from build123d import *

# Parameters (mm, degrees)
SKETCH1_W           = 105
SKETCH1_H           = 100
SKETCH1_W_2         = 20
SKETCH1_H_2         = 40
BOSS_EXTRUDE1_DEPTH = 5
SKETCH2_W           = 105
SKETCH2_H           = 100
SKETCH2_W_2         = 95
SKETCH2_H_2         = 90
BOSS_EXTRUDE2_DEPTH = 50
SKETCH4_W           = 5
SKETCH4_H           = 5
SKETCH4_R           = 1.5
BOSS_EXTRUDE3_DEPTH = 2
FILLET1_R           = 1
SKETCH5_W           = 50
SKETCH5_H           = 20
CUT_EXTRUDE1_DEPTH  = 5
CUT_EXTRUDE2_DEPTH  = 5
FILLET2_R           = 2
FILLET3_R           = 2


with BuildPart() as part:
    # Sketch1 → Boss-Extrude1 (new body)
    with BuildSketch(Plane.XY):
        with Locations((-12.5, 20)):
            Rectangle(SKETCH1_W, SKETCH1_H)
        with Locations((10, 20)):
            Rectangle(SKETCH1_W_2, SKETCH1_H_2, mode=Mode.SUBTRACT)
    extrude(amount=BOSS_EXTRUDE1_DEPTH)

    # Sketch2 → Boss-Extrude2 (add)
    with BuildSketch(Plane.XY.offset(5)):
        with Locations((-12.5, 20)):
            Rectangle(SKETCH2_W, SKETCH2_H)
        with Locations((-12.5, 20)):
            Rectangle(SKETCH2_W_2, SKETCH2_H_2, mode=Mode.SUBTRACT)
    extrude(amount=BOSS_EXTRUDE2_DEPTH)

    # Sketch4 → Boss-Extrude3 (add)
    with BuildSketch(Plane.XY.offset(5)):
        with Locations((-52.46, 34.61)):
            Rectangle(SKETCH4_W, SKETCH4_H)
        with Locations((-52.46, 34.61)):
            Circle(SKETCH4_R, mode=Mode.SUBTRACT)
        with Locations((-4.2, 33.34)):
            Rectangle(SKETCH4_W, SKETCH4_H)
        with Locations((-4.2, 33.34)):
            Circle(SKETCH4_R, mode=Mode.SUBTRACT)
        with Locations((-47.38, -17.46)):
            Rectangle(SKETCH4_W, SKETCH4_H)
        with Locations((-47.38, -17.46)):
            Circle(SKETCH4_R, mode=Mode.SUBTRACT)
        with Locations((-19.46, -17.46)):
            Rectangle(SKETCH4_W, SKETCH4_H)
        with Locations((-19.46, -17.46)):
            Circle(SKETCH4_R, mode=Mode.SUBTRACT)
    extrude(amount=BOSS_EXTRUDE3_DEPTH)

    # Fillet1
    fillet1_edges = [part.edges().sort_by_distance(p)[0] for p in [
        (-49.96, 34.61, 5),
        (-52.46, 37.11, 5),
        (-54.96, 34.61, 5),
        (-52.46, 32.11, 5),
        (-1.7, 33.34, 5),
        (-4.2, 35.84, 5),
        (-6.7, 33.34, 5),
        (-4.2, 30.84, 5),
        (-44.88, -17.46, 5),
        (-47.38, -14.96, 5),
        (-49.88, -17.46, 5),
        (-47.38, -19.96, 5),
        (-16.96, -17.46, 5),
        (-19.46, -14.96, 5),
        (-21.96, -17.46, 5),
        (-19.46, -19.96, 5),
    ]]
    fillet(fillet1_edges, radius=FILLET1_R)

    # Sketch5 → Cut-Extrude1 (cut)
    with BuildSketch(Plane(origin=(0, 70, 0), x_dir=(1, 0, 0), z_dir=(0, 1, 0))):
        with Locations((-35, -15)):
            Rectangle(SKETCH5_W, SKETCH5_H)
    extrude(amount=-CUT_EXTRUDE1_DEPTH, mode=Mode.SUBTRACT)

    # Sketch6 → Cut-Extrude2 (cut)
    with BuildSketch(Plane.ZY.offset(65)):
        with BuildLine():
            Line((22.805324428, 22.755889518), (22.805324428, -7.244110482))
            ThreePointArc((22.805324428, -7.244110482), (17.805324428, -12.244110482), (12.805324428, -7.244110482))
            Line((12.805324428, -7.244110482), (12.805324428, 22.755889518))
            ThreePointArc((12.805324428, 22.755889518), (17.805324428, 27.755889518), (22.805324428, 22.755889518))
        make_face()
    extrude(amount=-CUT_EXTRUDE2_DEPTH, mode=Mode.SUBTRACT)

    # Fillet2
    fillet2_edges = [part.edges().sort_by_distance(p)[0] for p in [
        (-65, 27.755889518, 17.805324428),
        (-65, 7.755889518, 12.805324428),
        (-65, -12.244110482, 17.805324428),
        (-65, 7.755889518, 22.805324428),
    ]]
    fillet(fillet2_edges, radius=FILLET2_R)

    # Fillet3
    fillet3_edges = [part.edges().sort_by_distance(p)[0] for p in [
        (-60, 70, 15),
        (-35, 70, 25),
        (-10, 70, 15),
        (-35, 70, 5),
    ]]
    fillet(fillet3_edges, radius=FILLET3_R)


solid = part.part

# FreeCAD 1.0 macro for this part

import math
import FreeCAD as App
import Part
import Sketcher
from FreeCAD import Vector
Q = App.Units.Quantity


def edges_at(feature, points):
    """Names of the edges that pass closest to the given points."""
    edges = feature.Shape.Edges
    near = lambda p: min(range(len(edges)), key=lambda i: edges[i].distToShape(Part.Vertex(*p))[0])
    return sorted({f"Edge{near(p) + 1}" for p in points})


def add_polygon(sketch, points):
    """Adds a closed chain of lines whose ends are joined by coincident constraints."""
    first, n = sketch.GeometryCount, len(points)
    for a, b in zip(points, points[1:] + points[:1]):
        sketch.addGeometry(Part.LineSegment(App.Vector(*a, 0), App.Vector(*b, 0)), False)
    for i in range(n):
        sketch.addConstraint(Sketcher.Constraint("Coincident", first + i, 2, first + (i + 1) % n, 1))

doc = App.newDocument("Part")
params = doc.addObject("Spreadsheet::Sheet", "Params")
for row, (alias, value) in enumerate([
    ("sketch1_width", "105 mm"),
    ("sketch1_width2", "20 mm"),
    ("sketch1_height", "100 mm"),
    ("sketch1_height2", "40 mm"),
    ("pad1_length", "5 mm"),
    ("sketch2_width", "105 mm"),
    ("sketch2_width2", "95 mm"),
    ("sketch2_height", "100 mm"),
    ("sketch2_height2", "90 mm"),
    ("pad2_length", "50 mm"),
    ("sketch3_diameter", "3 mm"),
    ("sketch3_width", "5 mm"),
    ("pad3_length", "2 mm"),
    ("fillet_radius", "1 mm"),
    ("sketch4_width", "50 mm"),
    ("sketch4_height", "20 mm"),
    ("pocket1_length", "5 mm"),
    ("sketch5_radius", "5 mm"),
    ("sketch5_width", "30 mm"),
    ("pocket2_length", "5 mm"),
    ("fillet2_radius", "2 mm"),
    ("fillet3_radius", "2 mm"),
], start=1):
    params.set(f"A{row}", alias)
    params.set(f"B{row}", "=" + value)
    params.setAlias(f"B{row}", alias)

body = doc.addObject("PartDesign::Body", "Body")

sketch1 = body.newObject("Sketcher::SketchObject", "Sketch")
sketch1.AttachmentSupport = (doc.getObject("XY_Plane"), [""])
sketch1.MapMode = "FlatFace"
add_polygon(sketch1, [(-65, 70), (-65, -30), (40, -30), (40, 70)])
add_polygon(sketch1, [(20, 0), (0, 0), (0, 40), (20, 40)])
sketch1.addConstraint(Sketcher.Constraint("Vertical", 0))
sketch1.addConstraint(Sketcher.Constraint("Horizontal", 1))
sketch1.addConstraint(Sketcher.Constraint("Vertical", 2))
sketch1.addConstraint(Sketcher.Constraint("Horizontal", 3))
sketch1.addConstraint(Sketcher.Constraint("Horizontal", 4))
sketch1.addConstraint(Sketcher.Constraint("Vertical", 5))
sketch1.addConstraint(Sketcher.Constraint("Horizontal", 6))
sketch1.addConstraint(Sketcher.Constraint("Vertical", 7))
sketch1.addConstraint(Sketcher.Constraint("Coincident", 4, 2, -1, 1))
sketch1.addConstraint(Sketcher.Constraint("DistanceX", 1, 1, 1, 2, Q("105 mm")))
sketch1.addConstraint(Sketcher.Constraint("DistanceX", 4, 2, 4, 1, Q("20 mm")))
sketch1.addConstraint(Sketcher.Constraint("DistanceY", 0, 2, 0, 1, Q("100 mm")))
sketch1.addConstraint(Sketcher.Constraint("DistanceY", 5, 1, 5, 2, Q("40 mm")))
sketch1.addConstraint(Sketcher.Constraint("DistanceX", 0, 2, -1, 1, Q("65 mm")))
sketch1.addConstraint(Sketcher.Constraint("DistanceY", 0, 2, -1, 1, Q("30 mm")))
sketch1.setExpression("Constraints[17]", "Params.sketch1_width")
sketch1.setExpression("Constraints[18]", "Params.sketch1_width2")
sketch1.setExpression("Constraints[19]", "Params.sketch1_height")
sketch1.setExpression("Constraints[20]", "Params.sketch1_height2")
pad1 = body.newObject("PartDesign::Pad", "Pad")
pad1.Profile = sketch1
pad1.setExpression("Length", "Params.pad1_length")

sketch2 = body.newObject("Sketcher::SketchObject", "Sketch001")
sketch2.AttachmentSupport = (doc.getObject("XY_Plane"), [""])
sketch2.MapMode = "FlatFace"
sketch2.AttachmentOffset = App.Placement(Vector(0, 0, 5), App.Rotation())
add_polygon(sketch2, [(-65, 70), (-65, -30), (40, -30), (40, 70)])
add_polygon(sketch2, [(35, -25), (-60, -25), (-60, 65), (35, 65)])
sketch2.addConstraint(Sketcher.Constraint("Vertical", 0))
sketch2.addConstraint(Sketcher.Constraint("Horizontal", 1))
sketch2.addConstraint(Sketcher.Constraint("Vertical", 2))
sketch2.addConstraint(Sketcher.Constraint("Horizontal", 3))
sketch2.addConstraint(Sketcher.Constraint("Horizontal", 4))
sketch2.addConstraint(Sketcher.Constraint("Vertical", 5))
sketch2.addConstraint(Sketcher.Constraint("Horizontal", 6))
sketch2.addConstraint(Sketcher.Constraint("Vertical", 7))
sketch2.addConstraint(Sketcher.Constraint("DistanceX", 1, 1, 1, 2, Q("105 mm")))
sketch2.addConstraint(Sketcher.Constraint("DistanceX", 4, 2, 4, 1, Q("95 mm")))
sketch2.addConstraint(Sketcher.Constraint("DistanceY", 0, 2, 0, 1, Q("100 mm")))
sketch2.addConstraint(Sketcher.Constraint("DistanceY", 5, 1, 5, 2, Q("90 mm")))
sketch2.addConstraint(Sketcher.Constraint("DistanceX", 0, 2, -1, 1, Q("65 mm")))
sketch2.addConstraint(Sketcher.Constraint("DistanceY", 0, 2, -1, 1, Q("30 mm")))
sketch2.addConstraint(Sketcher.Constraint("DistanceX", 4, 2, -1, 1, Q("60 mm")))
sketch2.addConstraint(Sketcher.Constraint("DistanceY", 4, 2, -1, 1, Q("25 mm")))
sketch2.setExpression("Constraints[16]", "Params.sketch2_width")
sketch2.setExpression("Constraints[17]", "Params.sketch2_width2")
sketch2.setExpression("Constraints[18]", "Params.sketch2_height")
sketch2.setExpression("Constraints[19]", "Params.sketch2_height2")
pad2 = body.newObject("PartDesign::Pad", "Pad001")
pad2.Profile = sketch2
pad2.setExpression("Length", "Params.pad2_length")

sketch3 = body.newObject("Sketcher::SketchObject", "Sketch002")
sketch3.AttachmentSupport = (doc.getObject("XY_Plane"), [""])
sketch3.MapMode = "FlatFace"
sketch3.AttachmentOffset = App.Placement(Vector(0, 0, 5), App.Rotation())
add_polygon(sketch3, [(-55, 37.1), (-55, 32.1), (-50, 32.1), (-50, 37.1)])
sketch3.addGeometry(Part.Circle(Vector(-52.5, 34.6, 0), Vector(0, 0, 1), 1.5), False)
add_polygon(sketch3, [(-6.7, 35.8), (-6.7, 30.8), (-1.7, 30.8), (-1.7, 35.8)])
sketch3.addGeometry(Part.Circle(Vector(-4.2, 33.3, 0), Vector(0, 0, 1), 1.5), False)
add_polygon(sketch3, [(-49.9, -15), (-49.9, -20), (-44.9, -20), (-44.9, -15)])
sketch3.addGeometry(Part.Circle(Vector(-47.4, -17.5, 0), Vector(0, 0, 1), 1.5), False)
add_polygon(sketch3, [(-22, -15), (-22, -20), (-17, -20), (-17, -15)])
sketch3.addGeometry(Part.Circle(Vector(-19.5, -17.5, 0), Vector(0, 0, 1), 1.5), False)
sketch3.addConstraint(Sketcher.Constraint("Vertical", 0))
sketch3.addConstraint(Sketcher.Constraint("Horizontal", 1))
sketch3.addConstraint(Sketcher.Constraint("Vertical", 2))
sketch3.addConstraint(Sketcher.Constraint("Horizontal", 3))
sketch3.addConstraint(Sketcher.Constraint("Vertical", 5))
sketch3.addConstraint(Sketcher.Constraint("Horizontal", 6))
sketch3.addConstraint(Sketcher.Constraint("Vertical", 7))
sketch3.addConstraint(Sketcher.Constraint("Horizontal", 8))
sketch3.addConstraint(Sketcher.Constraint("Vertical", 10))
sketch3.addConstraint(Sketcher.Constraint("Horizontal", 11))
sketch3.addConstraint(Sketcher.Constraint("Vertical", 12))
sketch3.addConstraint(Sketcher.Constraint("Horizontal", 13))
sketch3.addConstraint(Sketcher.Constraint("Vertical", 15))
sketch3.addConstraint(Sketcher.Constraint("Horizontal", 16))
sketch3.addConstraint(Sketcher.Constraint("Vertical", 17))
sketch3.addConstraint(Sketcher.Constraint("Horizontal", 18))
sketch3.addConstraint(Sketcher.Constraint("Equal", 4, 9))
sketch3.addConstraint(Sketcher.Constraint("Equal", 9, 14))
sketch3.addConstraint(Sketcher.Constraint("Equal", 14, 19))
sketch3.addConstraint(Sketcher.Constraint("Horizontal", 14, 3, 19, 3))
sketch3.addConstraint(Sketcher.Constraint("Horizontal", 11, 2, 15, 2))
sketch3.addConstraint(Sketcher.Constraint("Horizontal", 13, 2, 17, 2))
sketch3.addConstraint(Sketcher.Constraint("Equal", 3, 6))
sketch3.addConstraint(Sketcher.Constraint("Equal", 8, 11))
sketch3.addConstraint(Sketcher.Constraint("Equal", 13, 16))
sketch3.addConstraint(Sketcher.Constraint("Equal", 18, 0))
sketch3.addConstraint(Sketcher.Constraint("Equal", 2, 5))
sketch3.addConstraint(Sketcher.Constraint("Equal", 7, 10))
sketch3.addConstraint(Sketcher.Constraint("Diameter", 4, Q("3 mm")))
sketch3.addConstraint(Sketcher.Constraint("DistanceX", 1, 1, 1, 2, Q("5 mm")))
sketch3.addConstraint(Sketcher.Constraint("DistanceX", 4, 3, 19, 3, Q("33 mm")))
sketch3.addConstraint(Sketcher.Constraint("DistanceX", 9, 3, -1, 1, Q("4.2 mm")))
sketch3.addConstraint(Sketcher.Constraint("DistanceX", 5, 2, -1, 1, Q("6.7 mm")))
sketch3.addConstraint(Sketcher.Constraint("DistanceY", 14, 3, 9, 3, Q("50.8 mm")))
sketch3.addConstraint(Sketcher.Constraint("DistanceX", 0, 2, 4, 3, Q("2.5 mm")))
sketch3.addConstraint(Sketcher.Constraint("DistanceY", 0, 2, 4, 3, Q("2.5 mm")))
sketch3.addConstraint(Sketcher.Constraint("DistanceY", 5, 2, 9, 3, Q("2.5 mm")))
sketch3.addConstraint(Sketcher.Constraint("DistanceX", 10, 2, 14, 3, Q("2.5 mm")))
sketch3.addConstraint(Sketcher.Constraint("DistanceY", 10, 2, 14, 3, Q("2.5 mm")))
sketch3.addConstraint(Sketcher.Constraint("DistanceX", 15, 2, 19, 3, Q("2.5 mm")))
sketch3.addConstraint(Sketcher.Constraint("DistanceX", 4, 3, -1, 1, Q("52.46 mm")))
sketch3.addConstraint(Sketcher.Constraint("DistanceY", -1, 1, 4, 3, Q("34.61 mm")))
sketch3.addConstraint(Sketcher.Constraint("DistanceY", -1, 1, 9, 3, Q("33.34 mm")))
sketch3.addConstraint(Sketcher.Constraint("DistanceX", 14, 3, -1, 1, Q("47.38 mm")))
sketch3.setExpression("Constraints[44]", "Params.sketch3_diameter")
sketch3.setExpression("Constraints[45]", "Params.sketch3_width")
pad3 = body.newObject("PartDesign::Pad", "Pad002")
pad3.Profile = sketch3
pad3.setExpression("Length", "Params.pad3_length")
doc.recompute()

fillet = body.newObject("PartDesign::Fillet", "Fillet")
fillet.Base = (pad3, edges_at(pad3, [
    (-49.96, 34.61, 5),
    (-52.46, 37.11, 5),
    (-54.96, 34.61, 5),
    (-52.46, 32.11, 5),
    (-1.7, 33.34, 5),
    (-4.2, 35.84, 5),
    (-6.7, 33.34, 5),
    (-4.2, 30.84, 5),
    (-44.88, -17.46, 5),
    (-47.38, -14.96, 5),
    (-49.88, -17.46, 5),
    (-47.38, -19.96, 5),
    (-16.96, -17.46, 5),
    (-19.46, -14.96, 5),
    (-21.96, -17.46, 5),
    (-19.46, -19.96, 5),
]))
fillet.setExpression("Radius", "Params.fillet_radius")

sketch4 = body.newObject("Sketcher::SketchObject", "Sketch003")
sketch4.AttachmentSupport = (doc.getObject("XZ_Plane"), [""])
sketch4.MapMode = "FlatFace"
sketch4.AttachmentOffset = App.Placement(Vector(0, 0, -70), App.Rotation())
add_polygon(sketch4, [(-60, 5), (-60, 25), (-10, 25), (-10, 5)])
sketch4.addConstraint(Sketcher.Constraint("Vertical", 0))
sketch4.addConstraint(Sketcher.Constraint("Horizontal", 1))
sketch4.addConstraint(Sketcher.Constraint("Vertical", 2))
sketch4.addConstraint(Sketcher.Constraint("Horizontal", 3))
sketch4.addConstraint(Sketcher.Constraint("DistanceX", 1, 1, 1, 2, Q("50 mm")))
sketch4.addConstraint(Sketcher.Constraint("DistanceY", 0, 1, 0, 2, Q("20 mm")))
sketch4.addConstraint(Sketcher.Constraint("DistanceX", 0, 2, -1, 1, Q("60 mm")))
sketch4.addConstraint(Sketcher.Constraint("DistanceY", -1, 1, 0, 2, Q("25 mm")))
sketch4.setExpression("Constraints[8]", "Params.sketch4_width")
sketch4.setExpression("Constraints[9]", "Params.sketch4_height")
pocket1 = body.newObject("PartDesign::Pocket", "Pocket")
pocket1.Profile = sketch4
pocket1.setExpression("Length", "Params.pocket1_length")
pocket1.Reversed = True

sketch5 = body.newObject("Sketcher::SketchObject", "Sketch004")
sketch5.AttachmentSupport = (doc.getObject("YZ_Plane"), [""])
sketch5.MapMode = "FlatFace"
sketch5.AttachmentOffset = App.Placement(Vector(0, 0, -65), App.Rotation())
sketch5.addGeometry(Part.LineSegment(Vector(-7, 23, 0), Vector(23, 23, 0)), False)
sketch5.addGeometry(Part.ArcOfCircle(Part.Circle(Vector(23, 18, 0), Vector(0, 0, 1), 5), math.radians(-90), math.radians(90)), False)
sketch5.addGeometry(Part.LineSegment(Vector(23, 13, 0), Vector(-7, 13, 0)), False)
sketch5.addGeometry(Part.ArcOfCircle(Part.Circle(Vector(-7, 18, 0), Vector(0, 0, 1), 5), math.radians(90), math.radians(270)), False)
sketch5.addConstraint(Sketcher.Constraint("Tangent", 0, 2, 1, 2))
sketch5.addConstraint(Sketcher.Constraint("Tangent", 1, 1, 2, 1))
sketch5.addConstraint(Sketcher.Constraint("Tangent", 2, 2, 3, 2))
sketch5.addConstraint(Sketcher.Constraint("Tangent", 3, 1, 0, 1))
sketch5.addConstraint(Sketcher.Constraint("Horizontal", 0))
sketch5.addConstraint(Sketcher.Constraint("Horizontal", 2))
sketch5.addConstraint(Sketcher.Constraint("Radius", 1, Q("5 mm")))
sketch5.addConstraint(Sketcher.Constraint("DistanceX", 0, 1, 0, 2, Q("30 mm")))
sketch5.addConstraint(Sketcher.Constraint("DistanceX", -1, 1, 1, 3, Q("22.75589 mm")))
sketch5.addConstraint(Sketcher.Constraint("DistanceY", -1, 1, 1, 3, Q("17.805324 mm")))
sketch5.setExpression("Constraints[6]", "Params.sketch5_radius")
sketch5.setExpression("Constraints[7]", "Params.sketch5_width")
pocket2 = body.newObject("PartDesign::Pocket", "Pocket001")
pocket2.Profile = sketch5
pocket2.setExpression("Length", "Params.pocket2_length")
pocket2.Reversed = True
doc.recompute()

fillet2 = body.newObject("PartDesign::Fillet", "Fillet001")
fillet2.Base = (pocket2, edges_at(pocket2, [
    (-65, 27.756, 17.805),
    (-65, 7.756, 12.805),
    (-65, -12.244, 17.805),
    (-65, 7.756, 22.805),
]))
fillet2.setExpression("Radius", "Params.fillet2_radius")
doc.recompute()

fillet3 = body.newObject("PartDesign::Fillet", "Fillet002")
fillet3.Base = (fillet2, edges_at(fillet2, [
    (-60, 70, 15),
    (-35, 70, 25),
    (-10, 70, 15),
    (-35, 70, 5),
]))
fillet3.setExpression("Radius", "Params.fillet3_radius")

doc.recompute()
